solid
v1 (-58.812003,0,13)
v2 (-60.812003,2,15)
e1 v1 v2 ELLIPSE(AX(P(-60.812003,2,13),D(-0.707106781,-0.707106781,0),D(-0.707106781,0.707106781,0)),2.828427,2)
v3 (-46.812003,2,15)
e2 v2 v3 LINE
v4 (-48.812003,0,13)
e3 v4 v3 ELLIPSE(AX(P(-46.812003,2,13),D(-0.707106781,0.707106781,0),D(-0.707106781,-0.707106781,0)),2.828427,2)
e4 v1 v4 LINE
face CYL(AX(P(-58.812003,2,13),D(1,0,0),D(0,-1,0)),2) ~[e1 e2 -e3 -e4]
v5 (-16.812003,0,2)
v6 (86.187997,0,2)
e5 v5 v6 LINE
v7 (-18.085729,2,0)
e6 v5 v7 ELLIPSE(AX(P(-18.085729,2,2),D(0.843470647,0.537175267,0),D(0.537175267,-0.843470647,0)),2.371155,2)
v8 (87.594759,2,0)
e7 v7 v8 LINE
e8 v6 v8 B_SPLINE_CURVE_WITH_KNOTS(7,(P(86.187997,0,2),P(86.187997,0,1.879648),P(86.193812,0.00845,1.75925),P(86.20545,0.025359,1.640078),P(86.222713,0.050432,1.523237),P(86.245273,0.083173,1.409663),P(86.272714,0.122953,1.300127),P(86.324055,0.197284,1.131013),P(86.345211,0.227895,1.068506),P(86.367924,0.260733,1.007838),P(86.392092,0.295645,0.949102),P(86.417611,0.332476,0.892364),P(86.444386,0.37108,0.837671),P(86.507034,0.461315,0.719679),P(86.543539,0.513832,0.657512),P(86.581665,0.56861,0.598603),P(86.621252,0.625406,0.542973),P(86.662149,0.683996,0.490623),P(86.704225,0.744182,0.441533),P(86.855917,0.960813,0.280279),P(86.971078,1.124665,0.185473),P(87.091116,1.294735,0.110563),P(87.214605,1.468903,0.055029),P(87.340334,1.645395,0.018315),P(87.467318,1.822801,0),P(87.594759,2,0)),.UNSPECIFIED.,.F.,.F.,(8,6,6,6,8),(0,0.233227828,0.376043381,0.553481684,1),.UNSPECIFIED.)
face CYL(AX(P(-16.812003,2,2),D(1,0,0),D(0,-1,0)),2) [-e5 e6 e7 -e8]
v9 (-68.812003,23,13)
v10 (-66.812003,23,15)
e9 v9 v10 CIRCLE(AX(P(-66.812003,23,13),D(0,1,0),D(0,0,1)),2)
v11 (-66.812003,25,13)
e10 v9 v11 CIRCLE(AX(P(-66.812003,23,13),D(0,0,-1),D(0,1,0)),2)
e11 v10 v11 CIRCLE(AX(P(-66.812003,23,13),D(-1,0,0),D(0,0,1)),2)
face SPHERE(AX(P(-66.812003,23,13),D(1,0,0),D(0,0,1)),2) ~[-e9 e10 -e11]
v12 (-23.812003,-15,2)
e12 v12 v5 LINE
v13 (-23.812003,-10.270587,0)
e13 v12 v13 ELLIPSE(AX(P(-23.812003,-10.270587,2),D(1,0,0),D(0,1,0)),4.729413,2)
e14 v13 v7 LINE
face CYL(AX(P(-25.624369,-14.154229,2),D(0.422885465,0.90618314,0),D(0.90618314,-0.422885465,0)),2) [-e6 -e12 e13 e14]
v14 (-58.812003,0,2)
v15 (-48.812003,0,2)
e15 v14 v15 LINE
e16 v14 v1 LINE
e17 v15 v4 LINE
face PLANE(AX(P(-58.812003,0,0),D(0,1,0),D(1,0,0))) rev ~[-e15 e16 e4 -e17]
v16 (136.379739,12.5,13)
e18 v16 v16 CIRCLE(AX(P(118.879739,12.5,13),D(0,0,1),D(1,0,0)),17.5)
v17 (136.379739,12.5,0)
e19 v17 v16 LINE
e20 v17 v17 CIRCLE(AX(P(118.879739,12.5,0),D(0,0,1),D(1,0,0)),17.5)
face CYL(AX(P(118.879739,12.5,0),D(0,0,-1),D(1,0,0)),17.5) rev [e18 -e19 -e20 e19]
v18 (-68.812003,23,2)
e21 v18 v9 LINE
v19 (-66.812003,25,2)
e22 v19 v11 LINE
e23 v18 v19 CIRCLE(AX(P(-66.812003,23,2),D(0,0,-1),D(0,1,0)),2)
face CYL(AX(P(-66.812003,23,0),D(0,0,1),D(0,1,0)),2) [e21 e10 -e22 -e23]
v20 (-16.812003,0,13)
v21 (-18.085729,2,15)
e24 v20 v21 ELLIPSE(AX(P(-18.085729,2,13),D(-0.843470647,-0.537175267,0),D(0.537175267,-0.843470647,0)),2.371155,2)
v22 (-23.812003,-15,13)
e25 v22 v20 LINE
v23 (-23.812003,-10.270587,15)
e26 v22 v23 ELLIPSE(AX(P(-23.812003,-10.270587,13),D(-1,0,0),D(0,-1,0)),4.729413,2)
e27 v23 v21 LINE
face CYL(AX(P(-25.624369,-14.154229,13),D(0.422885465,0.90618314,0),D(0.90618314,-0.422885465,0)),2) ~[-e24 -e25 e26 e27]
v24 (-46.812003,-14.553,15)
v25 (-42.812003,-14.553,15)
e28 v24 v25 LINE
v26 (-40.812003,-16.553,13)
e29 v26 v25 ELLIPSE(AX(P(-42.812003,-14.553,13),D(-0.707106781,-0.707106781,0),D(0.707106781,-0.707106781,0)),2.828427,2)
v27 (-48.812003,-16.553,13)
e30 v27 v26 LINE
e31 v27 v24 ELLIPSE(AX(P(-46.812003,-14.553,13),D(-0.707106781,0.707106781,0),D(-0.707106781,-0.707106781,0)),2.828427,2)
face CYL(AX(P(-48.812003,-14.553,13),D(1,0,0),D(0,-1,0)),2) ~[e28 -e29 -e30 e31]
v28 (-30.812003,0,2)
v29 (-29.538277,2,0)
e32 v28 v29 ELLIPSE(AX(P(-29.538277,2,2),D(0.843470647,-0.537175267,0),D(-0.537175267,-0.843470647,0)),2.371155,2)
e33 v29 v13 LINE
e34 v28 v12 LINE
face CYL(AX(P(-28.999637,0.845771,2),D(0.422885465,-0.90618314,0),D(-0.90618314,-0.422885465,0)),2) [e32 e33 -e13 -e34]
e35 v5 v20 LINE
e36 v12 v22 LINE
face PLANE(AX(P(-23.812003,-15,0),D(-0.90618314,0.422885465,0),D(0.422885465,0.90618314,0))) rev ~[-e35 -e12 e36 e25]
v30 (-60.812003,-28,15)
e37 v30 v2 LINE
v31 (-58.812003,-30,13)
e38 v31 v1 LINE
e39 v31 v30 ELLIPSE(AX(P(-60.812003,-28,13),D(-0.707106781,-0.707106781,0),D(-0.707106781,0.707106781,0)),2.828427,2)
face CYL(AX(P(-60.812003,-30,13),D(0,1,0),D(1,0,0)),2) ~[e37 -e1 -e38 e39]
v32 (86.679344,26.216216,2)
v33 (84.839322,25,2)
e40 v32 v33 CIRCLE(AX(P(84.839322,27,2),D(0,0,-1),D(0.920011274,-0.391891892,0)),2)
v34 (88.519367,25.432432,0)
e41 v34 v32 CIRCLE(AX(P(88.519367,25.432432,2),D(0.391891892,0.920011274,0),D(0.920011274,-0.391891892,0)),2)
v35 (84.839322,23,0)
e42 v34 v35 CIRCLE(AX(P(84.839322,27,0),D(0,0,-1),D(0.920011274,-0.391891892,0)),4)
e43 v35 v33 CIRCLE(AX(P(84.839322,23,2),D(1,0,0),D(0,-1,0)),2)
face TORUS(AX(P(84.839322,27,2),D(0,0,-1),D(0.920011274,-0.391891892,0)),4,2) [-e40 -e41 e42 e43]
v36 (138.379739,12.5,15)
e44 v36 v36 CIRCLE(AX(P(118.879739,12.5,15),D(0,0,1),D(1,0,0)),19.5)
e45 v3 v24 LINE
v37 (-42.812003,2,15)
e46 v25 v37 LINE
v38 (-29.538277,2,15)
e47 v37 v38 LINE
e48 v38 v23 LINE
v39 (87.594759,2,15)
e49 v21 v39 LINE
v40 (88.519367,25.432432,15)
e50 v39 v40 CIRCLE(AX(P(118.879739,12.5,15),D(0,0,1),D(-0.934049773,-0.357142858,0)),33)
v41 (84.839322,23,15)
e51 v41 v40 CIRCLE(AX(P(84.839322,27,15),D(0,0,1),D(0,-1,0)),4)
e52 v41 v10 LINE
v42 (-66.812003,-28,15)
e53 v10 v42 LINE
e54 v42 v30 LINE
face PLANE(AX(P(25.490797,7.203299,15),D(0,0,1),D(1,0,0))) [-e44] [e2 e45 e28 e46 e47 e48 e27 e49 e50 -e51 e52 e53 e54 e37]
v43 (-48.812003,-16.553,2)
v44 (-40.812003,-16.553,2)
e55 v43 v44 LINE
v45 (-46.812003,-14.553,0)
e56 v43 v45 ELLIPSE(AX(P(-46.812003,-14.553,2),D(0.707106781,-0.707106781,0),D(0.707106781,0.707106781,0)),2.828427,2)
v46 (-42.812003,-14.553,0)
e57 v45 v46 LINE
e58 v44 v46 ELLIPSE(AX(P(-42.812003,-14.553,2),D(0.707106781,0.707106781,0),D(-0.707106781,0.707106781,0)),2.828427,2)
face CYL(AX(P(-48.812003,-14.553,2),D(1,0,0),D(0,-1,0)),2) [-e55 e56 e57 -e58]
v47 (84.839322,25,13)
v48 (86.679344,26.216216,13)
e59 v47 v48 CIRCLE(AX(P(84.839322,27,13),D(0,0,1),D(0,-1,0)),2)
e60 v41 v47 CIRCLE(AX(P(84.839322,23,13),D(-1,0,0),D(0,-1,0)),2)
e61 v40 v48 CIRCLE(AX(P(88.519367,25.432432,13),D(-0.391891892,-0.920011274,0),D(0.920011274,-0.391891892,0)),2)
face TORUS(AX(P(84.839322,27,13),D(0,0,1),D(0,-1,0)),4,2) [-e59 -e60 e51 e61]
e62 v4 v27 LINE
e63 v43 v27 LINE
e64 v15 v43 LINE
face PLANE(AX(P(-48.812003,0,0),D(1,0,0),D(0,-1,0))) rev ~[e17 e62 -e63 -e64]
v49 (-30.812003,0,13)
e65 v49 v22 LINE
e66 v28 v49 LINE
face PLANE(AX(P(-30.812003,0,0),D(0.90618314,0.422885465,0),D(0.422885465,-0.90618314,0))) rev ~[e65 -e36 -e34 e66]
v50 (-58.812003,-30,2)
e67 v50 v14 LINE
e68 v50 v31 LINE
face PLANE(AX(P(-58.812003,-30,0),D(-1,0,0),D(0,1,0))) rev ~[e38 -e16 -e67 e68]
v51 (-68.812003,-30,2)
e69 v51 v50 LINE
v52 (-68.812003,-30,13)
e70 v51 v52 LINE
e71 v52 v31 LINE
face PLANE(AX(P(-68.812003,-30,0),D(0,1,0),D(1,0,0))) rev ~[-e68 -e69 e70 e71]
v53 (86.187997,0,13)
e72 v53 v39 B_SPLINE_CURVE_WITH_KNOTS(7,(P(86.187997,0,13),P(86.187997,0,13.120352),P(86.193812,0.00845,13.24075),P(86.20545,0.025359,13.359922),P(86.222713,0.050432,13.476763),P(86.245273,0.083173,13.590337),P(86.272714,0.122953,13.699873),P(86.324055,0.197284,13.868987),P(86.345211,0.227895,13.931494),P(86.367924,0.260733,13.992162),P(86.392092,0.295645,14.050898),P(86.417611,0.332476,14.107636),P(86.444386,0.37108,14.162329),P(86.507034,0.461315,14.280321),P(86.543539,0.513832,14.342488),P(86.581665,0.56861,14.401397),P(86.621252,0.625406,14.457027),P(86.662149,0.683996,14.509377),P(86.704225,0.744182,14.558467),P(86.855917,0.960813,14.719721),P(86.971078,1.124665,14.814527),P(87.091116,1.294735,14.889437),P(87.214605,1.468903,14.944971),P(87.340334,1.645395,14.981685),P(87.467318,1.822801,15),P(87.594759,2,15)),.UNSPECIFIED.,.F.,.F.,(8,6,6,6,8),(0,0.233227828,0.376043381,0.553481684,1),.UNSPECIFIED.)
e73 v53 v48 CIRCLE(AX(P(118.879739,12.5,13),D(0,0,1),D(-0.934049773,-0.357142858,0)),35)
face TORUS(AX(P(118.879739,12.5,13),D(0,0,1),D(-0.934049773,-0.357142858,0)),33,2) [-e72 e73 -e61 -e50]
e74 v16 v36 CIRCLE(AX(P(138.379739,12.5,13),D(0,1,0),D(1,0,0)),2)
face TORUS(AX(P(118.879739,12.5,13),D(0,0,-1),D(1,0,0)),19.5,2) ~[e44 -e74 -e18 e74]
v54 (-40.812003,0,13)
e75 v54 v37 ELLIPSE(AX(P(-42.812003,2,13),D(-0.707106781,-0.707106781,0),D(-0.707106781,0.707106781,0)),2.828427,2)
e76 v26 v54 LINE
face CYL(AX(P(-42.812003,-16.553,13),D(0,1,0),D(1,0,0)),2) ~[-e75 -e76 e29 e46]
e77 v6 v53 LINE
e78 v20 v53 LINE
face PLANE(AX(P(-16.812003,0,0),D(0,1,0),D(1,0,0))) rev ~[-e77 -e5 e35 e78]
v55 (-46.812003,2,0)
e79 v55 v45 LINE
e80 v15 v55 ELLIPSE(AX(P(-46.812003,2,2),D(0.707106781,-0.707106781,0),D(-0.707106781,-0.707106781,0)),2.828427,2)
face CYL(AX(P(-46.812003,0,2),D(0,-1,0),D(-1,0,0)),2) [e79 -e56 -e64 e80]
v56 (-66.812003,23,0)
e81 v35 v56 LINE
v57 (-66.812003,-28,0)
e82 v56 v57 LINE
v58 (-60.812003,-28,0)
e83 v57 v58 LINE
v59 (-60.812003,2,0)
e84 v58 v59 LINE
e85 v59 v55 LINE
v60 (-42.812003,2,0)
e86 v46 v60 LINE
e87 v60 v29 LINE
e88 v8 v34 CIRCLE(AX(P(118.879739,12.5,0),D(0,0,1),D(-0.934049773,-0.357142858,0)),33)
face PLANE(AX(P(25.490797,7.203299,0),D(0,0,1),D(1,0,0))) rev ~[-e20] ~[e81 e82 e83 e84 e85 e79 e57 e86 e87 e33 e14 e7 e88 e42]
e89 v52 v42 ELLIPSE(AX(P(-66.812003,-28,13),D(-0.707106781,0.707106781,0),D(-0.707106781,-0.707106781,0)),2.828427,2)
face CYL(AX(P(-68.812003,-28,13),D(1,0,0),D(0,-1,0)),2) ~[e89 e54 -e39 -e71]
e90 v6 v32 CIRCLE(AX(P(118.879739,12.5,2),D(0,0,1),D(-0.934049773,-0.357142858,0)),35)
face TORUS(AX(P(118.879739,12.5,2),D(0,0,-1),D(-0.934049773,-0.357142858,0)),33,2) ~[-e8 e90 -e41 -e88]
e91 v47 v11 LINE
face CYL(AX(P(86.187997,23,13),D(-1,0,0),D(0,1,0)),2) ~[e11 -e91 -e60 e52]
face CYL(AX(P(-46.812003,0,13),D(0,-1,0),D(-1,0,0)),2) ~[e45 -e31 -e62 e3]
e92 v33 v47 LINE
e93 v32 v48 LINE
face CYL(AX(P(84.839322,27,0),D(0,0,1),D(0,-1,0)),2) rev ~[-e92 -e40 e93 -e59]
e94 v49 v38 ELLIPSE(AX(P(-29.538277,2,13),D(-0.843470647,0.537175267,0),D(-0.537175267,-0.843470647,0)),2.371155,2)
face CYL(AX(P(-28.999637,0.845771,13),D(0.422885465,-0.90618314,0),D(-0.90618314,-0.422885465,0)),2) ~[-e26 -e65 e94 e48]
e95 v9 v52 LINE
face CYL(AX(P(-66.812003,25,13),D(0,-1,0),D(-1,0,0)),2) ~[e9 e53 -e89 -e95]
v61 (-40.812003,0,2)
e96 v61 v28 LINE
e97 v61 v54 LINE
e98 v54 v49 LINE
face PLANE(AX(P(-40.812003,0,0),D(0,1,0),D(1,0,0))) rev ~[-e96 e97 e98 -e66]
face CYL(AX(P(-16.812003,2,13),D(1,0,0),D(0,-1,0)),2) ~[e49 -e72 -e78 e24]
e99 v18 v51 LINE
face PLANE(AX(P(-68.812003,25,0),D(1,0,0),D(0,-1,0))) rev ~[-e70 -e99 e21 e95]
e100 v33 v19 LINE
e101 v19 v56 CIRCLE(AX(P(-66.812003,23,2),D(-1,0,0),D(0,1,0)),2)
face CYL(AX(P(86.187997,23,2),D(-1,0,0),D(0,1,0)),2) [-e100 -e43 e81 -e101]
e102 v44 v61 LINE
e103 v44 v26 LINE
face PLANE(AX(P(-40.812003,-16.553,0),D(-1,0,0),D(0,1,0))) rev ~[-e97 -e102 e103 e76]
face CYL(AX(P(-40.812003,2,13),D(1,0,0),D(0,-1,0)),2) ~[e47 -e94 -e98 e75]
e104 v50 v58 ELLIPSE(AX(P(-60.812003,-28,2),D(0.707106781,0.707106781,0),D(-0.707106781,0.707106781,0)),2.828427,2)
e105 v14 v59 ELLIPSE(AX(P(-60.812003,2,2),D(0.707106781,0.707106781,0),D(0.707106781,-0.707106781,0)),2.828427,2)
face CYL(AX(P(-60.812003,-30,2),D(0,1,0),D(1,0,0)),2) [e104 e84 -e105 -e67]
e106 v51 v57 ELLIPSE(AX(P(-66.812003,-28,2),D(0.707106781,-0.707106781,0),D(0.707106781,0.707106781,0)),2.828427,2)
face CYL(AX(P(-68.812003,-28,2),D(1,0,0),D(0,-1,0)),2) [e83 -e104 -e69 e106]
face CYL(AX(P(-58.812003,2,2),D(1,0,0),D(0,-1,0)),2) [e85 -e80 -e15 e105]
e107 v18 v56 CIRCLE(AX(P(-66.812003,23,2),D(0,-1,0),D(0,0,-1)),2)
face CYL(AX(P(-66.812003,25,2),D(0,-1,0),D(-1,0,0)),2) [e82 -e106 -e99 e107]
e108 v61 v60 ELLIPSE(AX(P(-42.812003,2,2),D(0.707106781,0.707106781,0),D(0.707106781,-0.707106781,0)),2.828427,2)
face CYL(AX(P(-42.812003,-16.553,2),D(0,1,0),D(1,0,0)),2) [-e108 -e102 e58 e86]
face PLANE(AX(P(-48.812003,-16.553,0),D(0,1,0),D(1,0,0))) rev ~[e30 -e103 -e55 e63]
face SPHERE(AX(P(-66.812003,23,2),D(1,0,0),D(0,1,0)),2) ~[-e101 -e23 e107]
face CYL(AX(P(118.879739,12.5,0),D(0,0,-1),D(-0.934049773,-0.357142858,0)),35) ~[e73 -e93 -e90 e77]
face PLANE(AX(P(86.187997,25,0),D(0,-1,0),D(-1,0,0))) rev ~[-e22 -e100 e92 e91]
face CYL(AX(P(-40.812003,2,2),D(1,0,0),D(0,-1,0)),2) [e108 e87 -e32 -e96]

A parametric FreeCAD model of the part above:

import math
import FreeCAD as App
import Part
import Sketcher

V = App.Vector


def edges_at(feature, points):
    """Names of the edges that pass closest to the given points."""
    edges = feature.Shape.Edges
    near = lambda p: min(range(len(edges)), key=lambda i: edges[i].distToShape(Part.Vertex(*p))[0])
    return sorted({f"Edge{near(p) + 1}" for p in points})

doc = App.newDocument("Part")
body = doc.addObject("PartDesign::Body", "Body")

sketch1 = body.newObject("Sketcher::SketchObject", "Sketch")
sketch1.AttachmentSupport = (doc.getObject("XY_Plane"), [""])
sketch1.MapMode = "FlatFace"
sketch1.addGeometry([
    Part.LineSegment(V(86, 25, 0), V(-69, 25, 0)),
    Part.LineSegment(V(-69, 25, 0), V(-69, -30, 0)),
    Part.LineSegment(V(-69, -30, 0), V(-59, -30, 0)),
    Part.LineSegment(V(-59, -30, 0), V(-59, 0, 0)),
    Part.LineSegment(V(-59, 0, 0), V(-49, 0, 0)),
    Part.LineSegment(V(-49, 0, 0), V(-49, -17, 0)),
    Part.LineSegment(V(-49, -17, 0), V(-41, -17, 0)),
    Part.LineSegment(V(-41, -17, 0), V(-41, 0, 0)),
    Part.LineSegment(V(-41, 0, 0), V(-31, 0, 0)),
    Part.LineSegment(V(-31, 0, 0), V(-24, -15, 0)),
    Part.LineSegment(V(-24, -15, 0), V(-17, 0, 0)),
    Part.LineSegment(V(-17, 0, 0), V(86, 0, 0)),
    Part.ArcOfCircle(Part.Circle(V(119, 12, 0), V(0, 0, 1), 35), math.radians(-159), math.radians(159)),
    Part.Circle(V(119, 12, 0), V(0, 0, 1), 18),
], False)
sketch1.addConstraint([
    Sketcher.Constraint("Coincident", 0, 2, 1, 1),
    Sketcher.Constraint("Coincident", 1, 2, 2, 1),
    Sketcher.Constraint("Coincident", 2, 2, 3, 1),
    Sketcher.Constraint("Coincident", 3, 2, 4, 1),
    Sketcher.Constraint("Coincident", 4, 2, 5, 1),
    Sketcher.Constraint("Coincident", 5, 2, 6, 1),
    Sketcher.Constraint("Coincident", 6, 2, 7, 1),
    Sketcher.Constraint("Coincident", 7, 2, 8, 1),
    Sketcher.Constraint("Coincident", 8, 2, 9, 1),
    Sketcher.Constraint("Coincident", 9, 2, 10, 1),
    Sketcher.Constraint("Coincident", 10, 2, 11, 1),
    Sketcher.Constraint("Coincident", 11, 2, 12, 1),
    Sketcher.Constraint("Coincident", 12, 2, 0, 1),
    Sketcher.Constraint("Horizontal", 0),
    Sketcher.Constraint("Vertical", 1),
    Sketcher.Constraint("Horizontal", 2),
    Sketcher.Constraint("Vertical", 3),
    Sketcher.Constraint("Horizontal", 4),
    Sketcher.Constraint("Vertical", 5),
    Sketcher.Constraint("Horizontal", 6),
    Sketcher.Constraint("Vertical", 7),
    Sketcher.Constraint("Horizontal", 8),
    Sketcher.Constraint("Horizontal", 11),
    Sketcher.Constraint("Coincident", 13, 3, 12, 3),
    Sketcher.Constraint("PointOnObject", 3, 2, -1),
    Sketcher.Constraint("PointOnObject", 7, 2, -1),
    Sketcher.Constraint("PointOnObject", 10, 2, -1),
    Sketcher.Constraint("Vertical", 11, 2, 12, 2),
    Sketcher.Constraint("Equal", 2, 4),
    Sketcher.Constraint("Equal", 4, 8),
    Sketcher.Constraint("Equal", 9, 10),
    Sketcher.Constraint("Diameter", 13, 35.0),
    Sketcher.Constraint("Radius", 12, 35.0),
    Sketcher.Constraint("DistanceX", 0, 2, 0, 1, 155.0),
    Sketcher.Constraint("DistanceX", 2, 1, 2, 2, 10.0),
    Sketcher.Constraint("DistanceX", 6, 1, 6, 2, 8.0),
    Sketcher.Constraint("DistanceX", 11, 1, 11, 2, 103.0),
    Sketcher.Constraint("DistanceY", 1, 2, 1, 1, 55.0),
    Sketcher.Constraint("DistanceY", 3, 1, 3, 2, 30.0),
    Sketcher.Constraint("DistanceY", 9, 2, -1, 1, 15.0),
    Sketcher.Constraint("DistanceY", 5, 2, 5, 1, 16.553),
    Sketcher.Constraint("DistanceX", -1, 1, 12, 3, 118.879739),
])
pad1 = body.newObject("PartDesign::Pad", "Pad")
pad1.Profile = sketch1
pad1.Length = 15
doc.recompute()

fillet = body.newObject("PartDesign::Fillet", "Fillet")
fillet.Base = (pad1, edges_at(pad1, [
    (8.688, 25, 15),
    (-68.812, -2.5, 15),
    (-58.812, -15, 15),
    (-48.812, -8.277, 15),
    (-44.812, -16.553, 15),
    (-27.312, -7.5, 15),
    (34.688, 0, 15),
    (-20.312, -7.5, 15),
    (-40.812, -8.277, 15),
    (-63.812, -30, 15),
    (-53.812, 0, 15),
    (-35.812, 0, 15),
    (153.88, 12.5, 15),
    (101.38, 12.5, 15),
    (153.88, 12.5, 0),
    (8.688, 25, 0),
    (86.188, 25, 7.5),
    (-68.812, 25, 7.5),
    (34.688, 0, 0),
    (-20.312, -7.5, 0),
    (-27.312, -7.5, 0),
    (-35.812, 0, 0),
    (-40.812, -8.277, 0),
    (-44.812, -16.553, 0),
    (-48.812, -8.277, 0),
    (-53.812, 0, 0),
    (-58.812, -15, 0),
    (-63.812, -30, 0),
    (-68.812, -2.5, 0),
]))
fillet.Radius = 2

doc.recompute()
